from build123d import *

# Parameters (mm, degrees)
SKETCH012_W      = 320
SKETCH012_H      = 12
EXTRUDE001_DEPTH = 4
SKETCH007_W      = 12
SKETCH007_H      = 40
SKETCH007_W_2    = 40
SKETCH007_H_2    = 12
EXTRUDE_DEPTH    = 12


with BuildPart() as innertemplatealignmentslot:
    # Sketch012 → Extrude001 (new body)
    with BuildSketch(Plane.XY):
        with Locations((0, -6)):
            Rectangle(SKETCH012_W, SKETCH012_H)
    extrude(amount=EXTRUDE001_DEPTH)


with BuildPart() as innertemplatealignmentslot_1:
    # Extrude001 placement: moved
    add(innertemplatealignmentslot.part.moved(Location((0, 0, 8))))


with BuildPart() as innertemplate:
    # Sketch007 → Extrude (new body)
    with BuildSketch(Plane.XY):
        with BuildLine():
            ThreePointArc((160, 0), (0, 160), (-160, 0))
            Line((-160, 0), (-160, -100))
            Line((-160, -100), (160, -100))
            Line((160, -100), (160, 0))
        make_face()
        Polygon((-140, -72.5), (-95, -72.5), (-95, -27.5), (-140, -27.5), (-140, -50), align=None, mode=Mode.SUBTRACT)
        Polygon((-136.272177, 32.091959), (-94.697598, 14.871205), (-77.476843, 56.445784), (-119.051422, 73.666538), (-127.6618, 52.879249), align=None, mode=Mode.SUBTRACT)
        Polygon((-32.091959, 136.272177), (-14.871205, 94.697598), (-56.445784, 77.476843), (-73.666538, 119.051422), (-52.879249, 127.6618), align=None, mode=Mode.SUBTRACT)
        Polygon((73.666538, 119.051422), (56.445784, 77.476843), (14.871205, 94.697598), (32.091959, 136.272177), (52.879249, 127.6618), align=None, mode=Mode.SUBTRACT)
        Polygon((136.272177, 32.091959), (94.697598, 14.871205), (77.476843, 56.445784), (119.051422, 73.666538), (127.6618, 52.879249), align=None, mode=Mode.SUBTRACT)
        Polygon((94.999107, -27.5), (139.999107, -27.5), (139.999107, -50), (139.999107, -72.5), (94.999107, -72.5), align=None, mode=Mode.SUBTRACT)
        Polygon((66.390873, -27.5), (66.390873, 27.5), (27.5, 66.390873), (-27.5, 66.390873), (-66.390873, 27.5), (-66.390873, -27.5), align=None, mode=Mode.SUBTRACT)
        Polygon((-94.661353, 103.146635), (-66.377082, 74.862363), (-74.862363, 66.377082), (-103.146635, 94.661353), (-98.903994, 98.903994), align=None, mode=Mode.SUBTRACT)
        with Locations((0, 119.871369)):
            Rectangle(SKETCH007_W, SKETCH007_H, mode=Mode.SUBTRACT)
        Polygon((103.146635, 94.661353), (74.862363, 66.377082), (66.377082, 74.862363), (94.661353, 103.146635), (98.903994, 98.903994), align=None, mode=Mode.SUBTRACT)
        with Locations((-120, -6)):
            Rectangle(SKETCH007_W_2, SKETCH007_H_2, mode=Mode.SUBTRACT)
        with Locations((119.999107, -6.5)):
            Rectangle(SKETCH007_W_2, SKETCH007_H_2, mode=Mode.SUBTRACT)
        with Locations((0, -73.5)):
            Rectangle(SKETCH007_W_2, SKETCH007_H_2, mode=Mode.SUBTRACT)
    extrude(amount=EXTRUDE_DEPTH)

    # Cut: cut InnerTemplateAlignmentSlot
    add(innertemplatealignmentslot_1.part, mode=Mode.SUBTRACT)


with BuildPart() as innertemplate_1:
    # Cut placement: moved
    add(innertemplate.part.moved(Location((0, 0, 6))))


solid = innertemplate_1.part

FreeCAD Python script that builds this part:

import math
import FreeCAD as App
import Part
import Sketcher
from FreeCAD import Vector
Q = App.Units.Quantity

doc = App.newDocument("Part")
body = doc.addObject("PartDesign::Body", "Body")

# Sketch on XY plane
sketch1 = body.newObject("Sketcher::SketchObject", "Sketch")
sketch1.AttachmentSupport = (doc.getObject("XY_Plane"), [""])
sketch1.MapMode = "FlatFace"
sketch1.addGeometry([
    Part.LineSegment(Vector(-160, 0, 0), Vector(-160, -12, 0)),
    Part.LineSegment(Vector(-160, -12, 0), Vector(160, -12, 0)),
    Part.LineSegment(Vector(160, -12, 0), Vector(160, 0, 0)),
    Part.LineSegment(Vector(160, 0, 0), Vector(-160, 0, 0)),
], False)
sketch1.addConstraint([
    Sketcher.Constraint("Coincident", 0, 2, 1, 1),
    Sketcher.Constraint("Coincident", 1, 2, 2, 1),
    Sketcher.Constraint("Coincident", 2, 2, 3, 1),
    Sketcher.Constraint("Coincident", 3, 2, 0, 1),
    Sketcher.Constraint("Vertical", 0),
    Sketcher.Constraint("Horizontal", 1),
    Sketcher.Constraint("Vertical", 2),
    Sketcher.Constraint("Horizontal", 3),
    Sketcher.Constraint("Symmetric", 2, 2, 3, 2, -1, 1),
    Sketcher.Constraint("DistanceX", 1, 1, 1, 2, 320.0),
    Sketcher.Constraint("DistanceY", 0, 2, 0, 1, 12.0),
])
pad1 = body.newObject("PartDesign::Pad", "Pad")
pad1.Profile = sketch1
pad1.Length = 4
body2 = doc.addObject("PartDesign::Body", "Body001")
doc.recompute()

body.Placement = App.Placement(Vector(0, 0, 8), App.Rotation(Vector(0, 0, 1), 0))
boolean = body2.newObject("PartDesign::Boolean", "Boolean")
boolean.Type = "Fuse"
boolean.addObjects([body])
body3 = doc.addObject("PartDesign::Body", "Body002")

# Sketch on XY plane
sketch2 = body3.newObject("Sketcher::SketchObject", "Sketch001")
sketch2.AttachmentSupport = (doc.getObject("XY_Plane002"), [""])
sketch2.MapMode = "FlatFace"
sketch2.addGeometry([
    Part.ArcOfCircle(Part.Circle(Vector(0, 0, 0), Vector(0, 0, 1), 160), math.radians(0), math.radians(180)),  # 0
    Part.LineSegment(Vector(-160, 0, 0), Vector(-160, -100, 0)),  # 1
    Part.LineSegment(Vector(-160, -100, 0), Vector(160, -100, 0)),  # 2
    Part.LineSegment(Vector(160, -100, 0), Vector(160, 0, 0)),  # 3
    Part.LineSegment(Vector(-95, -72, 0), Vector(-140, -72, 0)),  # 4
    Part.LineSegment(Vector(-140, -72, 0), Vector(-140, -28, 0)),  # 5
    Part.LineSegment(Vector(-140, -28, 0), Vector(-95, -28, 0)),  # 6
    Part.LineSegment(Vector(-95, -28, 0), Vector(-95, -72, 0)),  # 7
    Part.LineSegment(Vector(-100, -12, 0), Vector(-140, -12, 0)),  # 8
    Part.LineSegment(Vector(-140, -12, 0), Vector(-140, 0, 0)),  # 9
    Part.LineSegment(Vector(-140, 0, 0), Vector(-100, 0, 0)),  # 10
    Part.LineSegment(Vector(-100, 0, 0), Vector(-100, -12, 0)),  # 11
    Part.LineSegment(Vector(20, -80, 0), Vector(-20, -80, 0)),  # 12
    Part.LineSegment(Vector(-20, -80, 0), Vector(-20, -68, 0)),  # 13
    Part.LineSegment(Vector(-20, -68, 0), Vector(20, -68, 0)),  # 14
    Part.LineSegment(Vector(20, -68, 0), Vector(20, -80, 0)),  # 15
    Part.LineSegment(Vector(95, -72, 0), Vector(95, -28, 0)),  # 16
    Part.LineSegment(Vector(95, -28, 0), Vector(140, -28, 0)),  # 17
    Part.LineSegment(Vector(140, -28, 0), Vector(140, -72, 0)),  # 18
    Part.LineSegment(Vector(140, -72, 0), Vector(95, -72, 0)),  # 19
    Part.LineSegment(Vector(66, 28, 0), Vector(66, -28, 0)),  # 20
    Part.LineSegment(Vector(66, -28, 0), Vector(-66, -28, 0)),  # 21
    Part.LineSegment(Vector(-66, -28, 0), Vector(-66, 28, 0)),  # 22
    Part.LineSegment(Vector(-66, 28, 0), Vector(-28, 66, 0)),  # 23
    Part.LineSegment(Vector(-28, 66, 0), Vector(28, 66, 0)),  # 24
    Part.LineSegment(Vector(28, 66, 0), Vector(66, 28, 0)),  # 25
    Part.LineSegment(Vector(140, -12, 0), Vector(100, -12, 0)),  # 26
    Part.LineSegment(Vector(100, -12, 0), Vector(100, 0, 0)),  # 27
    Part.LineSegment(Vector(100, 0, 0), Vector(140, 0, 0)),  # 28
    Part.LineSegment(Vector(140, 0, 0), Vector(140, -12, 0)),  # 29
    Part.LineSegment(Vector(-95, 15, 0), Vector(-136, 32, 0)),  # 30
    Part.LineSegment(Vector(-136, 32, 0), Vector(-128, 53, 0)),  # 31
    Part.LineSegment(Vector(-128, 53, 0), Vector(-119, 74, 0)),  # 32
    Part.LineSegment(Vector(-119, 74, 0), Vector(-77, 56, 0)),  # 33
    Part.LineSegment(Vector(-77, 56, 0), Vector(-95, 15, 0)),  # 34
    Part.LineSegment(Vector(-103, 95, 0), Vector(-95, 103, 0)),  # 35
    Part.LineSegment(Vector(-95, 103, 0), Vector(-66, 75, 0)),  # 36
    Part.LineSegment(Vector(-66, 75, 0), Vector(-75, 66, 0)),  # 37
    Part.LineSegment(Vector(-75, 66, 0), Vector(-103, 95, 0)),  # 38
    Part.LineSegment(Vector(-53, 128, 0), Vector(-32, 136, 0)),  # 39
    Part.LineSegment(Vector(-32, 136, 0), Vector(-15, 95, 0)),  # 40
    Part.LineSegment(Vector(-15, 95, 0), Vector(-56, 77, 0)),  # 41
    Part.LineSegment(Vector(-56, 77, 0), Vector(-74, 119, 0)),  # 42
    Part.LineSegment(Vector(-74, 119, 0), Vector(-53, 128, 0)),  # 43
    Part.LineSegment(Vector(128, 53, 0), Vector(136, 32, 0)),  # 44
    Part.LineSegment(Vector(136, 32, 0), Vector(95, 15, 0)),  # 45
    Part.LineSegment(Vector(95, 15, 0), Vector(77, 56, 0)),  # 46
    Part.LineSegment(Vector(77, 56, 0), Vector(119, 74, 0)),  # 47
    Part.LineSegment(Vector(119, 74, 0), Vector(128, 53, 0)),  # 48
    Part.LineSegment(Vector(95, 103, 0), Vector(103, 95, 0)),  # 49
    Part.LineSegment(Vector(103, 95, 0), Vector(75, 66, 0)),  # 50
    Part.LineSegment(Vector(75, 66, 0), Vector(66, 75, 0)),  # 51
    Part.LineSegment(Vector(66, 75, 0), Vector(95, 103, 0)),  # 52
    Part.LineSegment(Vector(53, 128, 0), Vector(74, 119, 0)),  # 53
    Part.LineSegment(Vector(74, 119, 0), Vector(56, 77, 0)),  # 54
    Part.LineSegment(Vector(56, 77, 0), Vector(15, 95, 0)),  # 55
    Part.LineSegment(Vector(15, 95, 0), Vector(32, 136, 0)),  # 56
    Part.LineSegment(Vector(32, 136, 0), Vector(53, 128, 0)),  # 57
    Part.LineSegment(Vector(6, 100, 0), Vector(-6, 100, 0)),  # 58
    Part.LineSegment(Vector(-6, 100, 0), Vector(-6, 140, 0)),  # 59
    Part.LineSegment(Vector(-6, 140, 0), Vector(6, 140, 0)),  # 60
    Part.LineSegment(Vector(6, 140, 0), Vector(6, 100, 0)),  # 61
], False)
sketch2.addConstraint([
    Sketcher.Constraint("Tangent", 0, 2, 1, 1),
    Sketcher.Constraint("Coincident", 1, 2, 2, 1),
    Sketcher.Constraint("Coincident", 2, 2, 3, 1),
    Sketcher.Constraint("Tangent", 3, 2, 0, 1),
    Sketcher.Constraint("Coincident", 4, 2, 5, 1),
    Sketcher.Constraint("Coincident", 5, 2, 6, 1),
    Sketcher.Constraint("Coincident", 6, 2, 7, 1),
    Sketcher.Constraint("Coincident", 7, 2, 4, 1),
    Sketcher.Constraint("Coincident", 8, 2, 9, 1),
    Sketcher.Constraint("Coincident", 9, 2, 10, 1),
    Sketcher.Constraint("Coincident", 10, 2, 11, 1),
    Sketcher.Constraint("Coincident", 11, 2, 8, 1),
    Sketcher.Constraint("Coincident", 12, 2, 13, 1),
    Sketcher.Constraint("Coincident", 13, 2, 14, 1),
    Sketcher.Constraint("Coincident", 14, 2, 15, 1),
    Sketcher.Constraint("Coincident", 15, 2, 12, 1),
    Sketcher.Constraint("Coincident", 16, 2, 17, 1),
    Sketcher.Constraint("Coincident", 17, 2, 18, 1),
    Sketcher.Constraint("Coincident", 18, 2, 19, 1),
    Sketcher.Constraint("Coincident", 19, 2, 16, 1),
    Sketcher.Constraint("Coincident", 20, 2, 21, 1),
    Sketcher.Constraint("Coincident", 21, 2, 22, 1),
    Sketcher.Constraint("Coincident", 22, 2, 23, 1),
    Sketcher.Constraint("Coincident", 23, 2, 24, 1),
    Sketcher.Constraint("Coincident", 24, 2, 25, 1),
    Sketcher.Constraint("Coincident", 25, 2, 20, 1),
    Sketcher.Constraint("Coincident", 26, 2, 27, 1),
    Sketcher.Constraint("Coincident", 27, 2, 28, 1),
    Sketcher.Constraint("Coincident", 28, 2, 29, 1),
    Sketcher.Constraint("Coincident", 29, 2, 26, 1),
    Sketcher.Constraint("Coincident", 30, 2, 31, 1),
    Sketcher.Constraint("Coincident", 31, 2, 32, 1),
    Sketcher.Constraint("Coincident", 32, 2, 33, 1),
    Sketcher.Constraint("Coincident", 33, 2, 34, 1),
    Sketcher.Constraint("Coincident", 34, 2, 30, 1),
    Sketcher.Constraint("Coincident", 35, 2, 36, 1),
    Sketcher.Constraint("Coincident", 36, 2, 37, 1),
    Sketcher.Constraint("Coincident", 37, 2, 38, 1),
    Sketcher.Constraint("Coincident", 38, 2, 35, 1),
    Sketcher.Constraint("Coincident", 39, 2, 40, 1),
    Sketcher.Constraint("Coincident", 40, 2, 41, 1),
    Sketcher.Constraint("Coincident", 41, 2, 42, 1),
    Sketcher.Constraint("Coincident", 42, 2, 43, 1),
    Sketcher.Constraint("Coincident", 43, 2, 39, 1),
    Sketcher.Constraint("Coincident", 44, 2, 45, 1),
    Sketcher.Constraint("Coincident", 45, 2, 46, 1),
    Sketcher.Constraint("Coincident", 46, 2, 47, 1),
    Sketcher.Constraint("Coincident", 47, 2, 48, 1),
    Sketcher.Constraint("Coincident", 48, 2, 44, 1),
    Sketcher.Constraint("Coincident", 49, 2, 50, 1),
    Sketcher.Constraint("Coincident", 50, 2, 51, 1),
    Sketcher.Constraint("Coincident", 51, 2, 52, 1),
    Sketcher.Constraint("Coincident", 52, 2, 49, 1),
    Sketcher.Constraint("Coincident", 53, 2, 54, 1),
    Sketcher.Constraint("Coincident", 54, 2, 55, 1),
    Sketcher.Constraint("Coincident", 55, 2, 56, 1),
    Sketcher.Constraint("Coincident", 56, 2, 57, 1),
    Sketcher.Constraint("Coincident", 57, 2, 53, 1),
    Sketcher.Constraint("Coincident", 58, 2, 59, 1),
    Sketcher.Constraint("Coincident", 59, 2, 60, 1),
    Sketcher.Constraint("Coincident", 60, 2, 61, 1),
    Sketcher.Constraint("Coincident", 61, 2, 58, 1),
    Sketcher.Constraint("Vertical", 1),
    Sketcher.Constraint("Horizontal", 2),
    Sketcher.Constraint("Vertical", 3),
    Sketcher.Constraint("Horizontal", 4),
    Sketcher.Constraint("Vertical", 5),
    Sketcher.Constraint("Horizontal", 6),
    Sketcher.Constraint("Vertical", 7),
    Sketcher.Constraint("Horizontal", 8),
    Sketcher.Constraint("Vertical", 9),
    Sketcher.Constraint("Horizontal", 10),
    Sketcher.Constraint("Vertical", 11),
    Sketcher.Constraint("Horizontal", 12),
    Sketcher.Constraint("Vertical", 13),
    Sketcher.Constraint("Horizontal", 14),
    Sketcher.Constraint("Vertical", 15),
    Sketcher.Constraint("Vertical", 16),
    Sketcher.Constraint("Horizontal", 17),
    Sketcher.Constraint("Vertical", 18),
    Sketcher.Constraint("Horizontal", 19),
    Sketcher.Constraint("Vertical", 20),
    Sketcher.Constraint("Horizontal", 21),
    Sketcher.Constraint("Vertical", 22),
    Sketcher.Constraint("Horizontal", 24),
    Sketcher.Constraint("Horizontal", 26),
    Sketcher.Constraint("Vertical", 27),
    Sketcher.Constraint("Horizontal", 28),
    Sketcher.Constraint("Vertical", 29),
    Sketcher.Constraint("Horizontal", 58),
    Sketcher.Constraint("Vertical", 59),
    Sketcher.Constraint("Horizontal", 60),
    Sketcher.Constraint("Vertical", 61),
    Sketcher.Constraint("Coincident", 0, 3, -1, 1),
    Sketcher.Constraint("Symmetric", 20, 2, 22, 2, -1, 1),
    Sketcher.Constraint("Symmetric", 30, 2, 44, 2, -2),
    Sketcher.Constraint("Symmetric", 34, 2, 45, 2, -2),
    Sketcher.Constraint("Symmetric", 33, 2, 46, 2, -2),
    Sketcher.Constraint("Symmetric", 32, 2, 47, 2, -2),
    Sketcher.Constraint("Symmetric", 31, 2, 48, 2, -2),
    Sketcher.Constraint("Symmetric", 38, 2, 49, 2, -2),
    Sketcher.Constraint("Symmetric", 37, 2, 50, 2, -2),
    Sketcher.Constraint("Symmetric", 36, 2, 51, 2, -2),
    Sketcher.Constraint("Symmetric", 35, 2, 52, 2, -2),
    Sketcher.Constraint("Symmetric", 42, 2, 53, 2, -2),
    Sketcher.Constraint("Symmetric", 41, 2, 54, 2, -2),
    Sketcher.Constraint("Symmetric", 40, 2, 55, 2, -2),
    Sketcher.Constraint("Symmetric", 39, 2, 56, 2, -2),
    Sketcher.Constraint("Symmetric", 43, 2, 57, 2, -2),
    Sketcher.Constraint("PointOnObject", 9, 2, -1),
    Sketcher.Constraint("Perpendicular", 23, 25),
    Sketcher.Constraint("Perpendicular", 30, 31),
    Sketcher.Constraint("Parallel", 31, 32),
    Sketcher.Constraint("Perpendicular", 32, 33),
    Sketcher.Constraint("Perpendicular", 33, 34),
    Sketcher.Constraint("Perpendicular", 25, 35),
    Sketcher.Constraint("Perpendicular", 35, 36),
    Sketcher.Constraint("Perpendicular", 36, 37),
    Sketcher.Constraint("Perpendicular", 37, 38),
    Sketcher.Constraint("Perpendicular", 39, 40),
    Sketcher.Constraint("Perpendicular", 40, 41),
    Sketcher.Constraint("Perpendicular", 41, 42),
    Sketcher.Constraint("Perpendicular", 42, 43),
    Sketcher.Constraint("Perpendicular", 43, 44),
    Sketcher.Constraint("Parallel", 38, 49),
    Sketcher.Constraint("Horizontal", 6, 2, 16, 2),
    Sketcher.Constraint("Horizontal", 7, 2, 18, 2),
    Sketcher.Constraint("Horizontal", 17, 2, 20, 2),
    Sketcher.Constraint("Horizontal", 22, 2, 25, 2),
    Sketcher.Constraint("Vertical", 5, 2, 8, 2),
    Sketcher.Constraint("Vertical", 18, 2, 28, 2),
    Sketcher.Constraint("Equal", 10, 12),
    Sketcher.Constraint("Equal", 6, 17),
    Sketcher.Constraint("Equal", 14, 26),
    Sketcher.Constraint("Equal", 19, 5),
    Sketcher.Constraint("Equal", 60, 9),
    Sketcher.Constraint("Equal", 11, 13),
    Sketcher.Constraint("Equal", 24, 20),
    Sketcher.Constraint("Equal", 15, 27),
    Sketcher.Constraint("Equal", 28, 59),
    Sketcher.Constraint("Equal", 31, 32),
    Sketcher.Constraint("Equal", 33, 34),
    Sketcher.Constraint("Equal", 32, 39),
    Sketcher.Constraint("Equal", 34, 40),
    Sketcher.Constraint("Equal", 40, 41),
    Sketcher.Constraint("Radius", 0, 160.0),
    Sketcher.Constraint("DistanceX", 4, 2, 4, 1, 45.0),
    Sketcher.Constraint("DistanceX", 8, 2, 8, 1, 40.0),
    Sketcher.Constraint("DistanceX", 24, 1, 24, 2, 55.0),
    Sketcher.Constraint("DistanceX", 58, 2, 58, 1, 12.0),
    Sketcher.Constraint("DistanceY", 1, 2, 1, 1, 100.0),
    Sketcher.Constraint("Distance", 23, 55.0),
    Sketcher.Constraint("Distance", 30, 45.0),
    Sketcher.Constraint("Distance", 35, 12.000001),
    Sketcher.Constraint("Distance", 36, 40.0),
    Sketcher.Constraint("DistanceX", 4, 2, -1, 1, 140.0),
    Sketcher.Constraint("DistanceX", 12, 2, -1, 1, 20.0),
    Sketcher.Constraint("DistanceX", 58, 2, -1, 1, 6.0),
    Sketcher.Constraint("Angle", 30, Q("157.500001 deg")),
    Sketcher.Constraint("DistanceY", 12, 2, -1, 1, 79.5),
    Sketcher.Constraint("DistanceY", 26, 2, -1, 1, 12.5),
    Sketcher.Constraint("DistanceX", 31, 2, -1, 1, 127.6618),
    Sketcher.Constraint("DistanceY", -1, 1, 40, 2, 94.697598),
    Sketcher.Constraint("DistanceY", -1, 1, 30, 2, 32.091959),
    Sketcher.Constraint("DistanceX", 36, 2, -1, 1, 66.377082),
    Sketcher.Constraint("DistanceY", -1, 1, 37, 2, 66.377082),
    Sketcher.Constraint("DistanceX", 39, 2, -1, 1, 32.091959),
    Sketcher.Constraint("DistanceY", -1, 1, 58, 2, 99.871369),
    Sketcher.Constraint("DistanceX", -1, 1, 16, 2, 94.999107),
])
pad2 = body3.newObject("PartDesign::Pad", "Pad001")
pad2.Profile = sketch2
pad2.Length = 12
doc.recompute()

boolean2 = body3.newObject("PartDesign::Boolean", "Boolean001")
boolean2.Type = "Cut"
boolean2.addObjects([body2])
body4 = doc.addObject("PartDesign::Body", "Body003")
doc.recompute()

body3.Placement = App.Placement(Vector(0, 0, 6), App.Rotation(Vector(0, 0, 1), 0))
boolean3 = body4.newObject("PartDesign::Boolean", "Boolean002")
boolean3.Type = "Fuse"
boolean3.addObjects([body3])

doc.recompute()
